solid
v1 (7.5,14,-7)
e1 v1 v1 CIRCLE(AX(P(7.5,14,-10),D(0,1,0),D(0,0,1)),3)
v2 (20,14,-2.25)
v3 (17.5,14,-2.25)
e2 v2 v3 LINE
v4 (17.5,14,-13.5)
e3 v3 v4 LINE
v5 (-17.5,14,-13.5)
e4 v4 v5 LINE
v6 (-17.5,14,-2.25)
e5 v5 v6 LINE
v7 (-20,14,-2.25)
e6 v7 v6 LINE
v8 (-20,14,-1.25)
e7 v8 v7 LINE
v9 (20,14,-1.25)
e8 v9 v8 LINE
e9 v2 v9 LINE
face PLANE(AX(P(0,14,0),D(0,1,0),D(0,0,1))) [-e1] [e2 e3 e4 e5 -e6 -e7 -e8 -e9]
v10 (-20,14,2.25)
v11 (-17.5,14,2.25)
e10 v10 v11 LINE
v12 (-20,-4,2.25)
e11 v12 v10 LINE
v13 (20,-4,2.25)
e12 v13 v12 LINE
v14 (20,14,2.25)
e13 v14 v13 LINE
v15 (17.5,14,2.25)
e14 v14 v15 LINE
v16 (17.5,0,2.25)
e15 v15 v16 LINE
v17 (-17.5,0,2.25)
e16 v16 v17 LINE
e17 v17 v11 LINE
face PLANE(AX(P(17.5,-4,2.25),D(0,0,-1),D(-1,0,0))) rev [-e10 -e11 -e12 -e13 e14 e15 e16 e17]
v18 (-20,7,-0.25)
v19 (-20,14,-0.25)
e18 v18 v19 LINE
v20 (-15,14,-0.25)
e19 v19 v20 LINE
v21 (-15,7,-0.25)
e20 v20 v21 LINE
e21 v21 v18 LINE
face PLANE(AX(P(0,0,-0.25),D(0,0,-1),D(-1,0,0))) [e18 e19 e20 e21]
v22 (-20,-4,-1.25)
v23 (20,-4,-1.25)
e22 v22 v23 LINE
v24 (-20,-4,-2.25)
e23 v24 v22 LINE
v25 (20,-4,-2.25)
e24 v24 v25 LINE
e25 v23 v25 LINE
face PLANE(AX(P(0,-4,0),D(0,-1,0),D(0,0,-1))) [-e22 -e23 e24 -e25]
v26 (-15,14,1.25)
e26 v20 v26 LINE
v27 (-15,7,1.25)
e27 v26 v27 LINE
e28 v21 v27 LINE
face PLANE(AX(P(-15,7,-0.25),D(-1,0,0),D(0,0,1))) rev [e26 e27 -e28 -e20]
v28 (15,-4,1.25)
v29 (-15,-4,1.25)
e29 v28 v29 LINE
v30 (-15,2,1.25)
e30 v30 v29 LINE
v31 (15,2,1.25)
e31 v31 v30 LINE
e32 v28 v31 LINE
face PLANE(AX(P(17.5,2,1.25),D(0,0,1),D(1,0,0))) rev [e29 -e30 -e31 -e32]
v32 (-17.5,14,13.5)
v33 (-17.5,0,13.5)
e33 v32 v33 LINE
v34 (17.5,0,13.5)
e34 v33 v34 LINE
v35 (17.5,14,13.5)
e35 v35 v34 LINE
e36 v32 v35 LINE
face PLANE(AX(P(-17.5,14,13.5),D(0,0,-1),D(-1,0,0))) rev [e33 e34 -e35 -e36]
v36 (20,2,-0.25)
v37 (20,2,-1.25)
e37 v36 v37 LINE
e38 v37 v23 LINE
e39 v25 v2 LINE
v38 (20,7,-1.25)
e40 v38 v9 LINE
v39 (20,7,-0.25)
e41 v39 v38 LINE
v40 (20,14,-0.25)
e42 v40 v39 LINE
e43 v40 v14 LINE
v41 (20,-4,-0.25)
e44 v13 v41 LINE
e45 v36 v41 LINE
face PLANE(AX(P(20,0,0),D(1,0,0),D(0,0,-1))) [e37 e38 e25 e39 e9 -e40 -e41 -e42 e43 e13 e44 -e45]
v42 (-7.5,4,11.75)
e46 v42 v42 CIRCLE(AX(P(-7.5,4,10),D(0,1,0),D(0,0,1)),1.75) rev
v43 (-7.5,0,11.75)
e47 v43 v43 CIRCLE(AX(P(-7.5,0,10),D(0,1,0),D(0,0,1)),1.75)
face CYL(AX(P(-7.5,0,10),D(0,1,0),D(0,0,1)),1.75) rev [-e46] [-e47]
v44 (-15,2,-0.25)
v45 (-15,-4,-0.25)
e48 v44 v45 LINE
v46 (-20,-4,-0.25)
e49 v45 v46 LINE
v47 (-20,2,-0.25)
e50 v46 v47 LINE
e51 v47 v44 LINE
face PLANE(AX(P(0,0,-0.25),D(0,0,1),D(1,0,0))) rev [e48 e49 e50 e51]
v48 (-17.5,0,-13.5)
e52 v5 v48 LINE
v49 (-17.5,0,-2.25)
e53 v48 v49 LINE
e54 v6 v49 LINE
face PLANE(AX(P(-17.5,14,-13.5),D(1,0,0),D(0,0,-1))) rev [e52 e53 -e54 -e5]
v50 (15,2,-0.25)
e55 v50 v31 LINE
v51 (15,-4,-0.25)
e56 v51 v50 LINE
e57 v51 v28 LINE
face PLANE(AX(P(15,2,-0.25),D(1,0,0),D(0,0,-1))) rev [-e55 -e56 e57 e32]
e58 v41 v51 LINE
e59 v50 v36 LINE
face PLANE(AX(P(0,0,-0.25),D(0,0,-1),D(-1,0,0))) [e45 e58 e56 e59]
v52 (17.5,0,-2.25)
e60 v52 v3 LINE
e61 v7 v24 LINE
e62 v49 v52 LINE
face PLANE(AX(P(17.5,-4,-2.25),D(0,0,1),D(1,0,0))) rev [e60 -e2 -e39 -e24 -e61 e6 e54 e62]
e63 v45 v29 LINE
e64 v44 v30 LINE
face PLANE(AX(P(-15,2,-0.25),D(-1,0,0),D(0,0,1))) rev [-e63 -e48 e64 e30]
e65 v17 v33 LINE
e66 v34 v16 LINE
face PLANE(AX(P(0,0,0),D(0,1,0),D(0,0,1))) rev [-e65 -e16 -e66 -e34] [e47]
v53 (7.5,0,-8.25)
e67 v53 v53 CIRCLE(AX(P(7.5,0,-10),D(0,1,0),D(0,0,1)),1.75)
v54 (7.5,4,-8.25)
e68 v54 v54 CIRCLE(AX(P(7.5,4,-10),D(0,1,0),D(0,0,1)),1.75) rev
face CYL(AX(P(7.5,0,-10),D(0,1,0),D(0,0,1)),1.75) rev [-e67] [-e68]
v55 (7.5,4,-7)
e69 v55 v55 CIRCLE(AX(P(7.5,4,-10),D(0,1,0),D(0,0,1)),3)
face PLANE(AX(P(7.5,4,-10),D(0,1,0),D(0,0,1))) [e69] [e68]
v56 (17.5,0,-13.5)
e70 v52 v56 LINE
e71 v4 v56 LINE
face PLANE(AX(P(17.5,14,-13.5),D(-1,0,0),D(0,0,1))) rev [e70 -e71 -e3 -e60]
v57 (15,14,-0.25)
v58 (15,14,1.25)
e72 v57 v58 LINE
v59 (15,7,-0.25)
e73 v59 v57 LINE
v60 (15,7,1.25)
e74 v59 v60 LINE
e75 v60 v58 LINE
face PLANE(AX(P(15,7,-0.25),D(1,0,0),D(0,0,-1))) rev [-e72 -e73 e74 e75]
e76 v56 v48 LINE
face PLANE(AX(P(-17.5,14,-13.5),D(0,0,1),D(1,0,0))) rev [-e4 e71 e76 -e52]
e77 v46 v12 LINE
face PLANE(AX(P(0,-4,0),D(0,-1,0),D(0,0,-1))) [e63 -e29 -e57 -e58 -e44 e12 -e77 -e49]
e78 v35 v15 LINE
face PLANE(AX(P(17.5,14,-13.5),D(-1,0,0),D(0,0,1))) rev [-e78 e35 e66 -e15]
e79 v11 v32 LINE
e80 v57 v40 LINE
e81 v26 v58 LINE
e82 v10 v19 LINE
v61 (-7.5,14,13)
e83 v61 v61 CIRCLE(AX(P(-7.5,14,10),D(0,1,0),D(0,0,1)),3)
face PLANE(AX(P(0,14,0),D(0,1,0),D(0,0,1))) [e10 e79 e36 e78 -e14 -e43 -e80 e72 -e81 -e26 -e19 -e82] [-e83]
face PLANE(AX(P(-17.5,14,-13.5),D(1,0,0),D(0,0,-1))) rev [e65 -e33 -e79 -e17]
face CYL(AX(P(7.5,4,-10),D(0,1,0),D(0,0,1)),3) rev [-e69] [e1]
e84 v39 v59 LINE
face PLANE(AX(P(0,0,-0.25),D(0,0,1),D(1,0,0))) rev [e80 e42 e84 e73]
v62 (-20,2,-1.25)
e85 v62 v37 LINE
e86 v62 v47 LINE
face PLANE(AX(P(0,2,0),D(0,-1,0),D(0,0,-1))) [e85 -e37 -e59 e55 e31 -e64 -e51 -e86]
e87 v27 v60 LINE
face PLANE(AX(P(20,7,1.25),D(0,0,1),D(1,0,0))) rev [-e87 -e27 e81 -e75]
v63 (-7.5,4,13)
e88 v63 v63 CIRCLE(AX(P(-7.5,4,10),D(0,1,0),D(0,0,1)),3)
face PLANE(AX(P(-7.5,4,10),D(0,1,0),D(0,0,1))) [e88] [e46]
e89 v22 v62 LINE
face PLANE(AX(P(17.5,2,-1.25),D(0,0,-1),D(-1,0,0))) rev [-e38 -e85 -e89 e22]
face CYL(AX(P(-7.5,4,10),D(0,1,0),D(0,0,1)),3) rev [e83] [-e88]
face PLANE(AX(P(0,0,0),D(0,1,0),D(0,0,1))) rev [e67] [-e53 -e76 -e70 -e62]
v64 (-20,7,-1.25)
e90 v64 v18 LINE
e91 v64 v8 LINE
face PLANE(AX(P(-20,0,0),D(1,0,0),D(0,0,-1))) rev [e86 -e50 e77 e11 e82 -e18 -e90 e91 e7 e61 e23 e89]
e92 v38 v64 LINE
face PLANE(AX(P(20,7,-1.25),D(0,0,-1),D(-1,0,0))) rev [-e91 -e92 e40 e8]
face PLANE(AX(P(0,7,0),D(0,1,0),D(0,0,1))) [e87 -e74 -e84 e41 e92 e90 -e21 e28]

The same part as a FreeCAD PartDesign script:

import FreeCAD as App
import Part
import Sketcher
from FreeCAD import Vector

doc = App.newDocument("Part")
body = doc.addObject("PartDesign::Body", "Body")

# Sketch on XZ plane
sketch1 = doc.addObject("Sketcher::SketchObject", "Sketch")
body.addObject(sketch1)
sketch1.AttachmentSupport = (doc.XZ_Plane, [""])
sketch1.MapMode = "FlatFace"
sketch1.addGeometry([
    Part.LineSegment(Vector(-18, -14, 0), Vector(-18, 14, 0)),
    Part.LineSegment(Vector(-18, 14, 0), Vector(18, 14, 0)),
    Part.LineSegment(Vector(18, 14, 0), Vector(18, -14, 0)),
    Part.LineSegment(Vector(18, -14, 0), Vector(-18, -14, 0)),
], False)
sketch1.addConstraint([
    Sketcher.Constraint("Coincident", 0, 2, 1, 1),
    Sketcher.Constraint("Coincident", 1, 2, 2, 1),
    Sketcher.Constraint("Coincident", 2, 2, 3, 1),
    Sketcher.Constraint("Coincident", 3, 2, 0, 1),
    Sketcher.Constraint("Vertical", 0),
    Sketcher.Constraint("Horizontal", 1),
    Sketcher.Constraint("Vertical", 2),
    Sketcher.Constraint("Horizontal", 3),
    Sketcher.Constraint("Symmetric", 0, 2, 2, 2, -1, 1),
    Sketcher.Constraint("DistanceX", 1, 1, 1, 2, 35.0),
    Sketcher.Constraint("DistanceY", 0, 1, 0, 2, 27.0),
])
pad1 = doc.addObject("PartDesign::Pad", "Pad")
body.addObject(pad1)
pad1.Profile = sketch1
pad1.Length = 14
pad1.Reversed = True

# Sketch on XZ plane
sketch2 = doc.addObject("Sketcher::SketchObject", "Sketch001")
body.addObject(sketch2)
sketch2.AttachmentSupport = (doc.XZ_Plane, [""])
sketch2.MapMode = "FlatFace"
sketch2.AttachmentOffset = App.Placement(Vector(0, 0, -14), App.Rotation())
sketch2.addGeometry([
    Part.Circle(Vector(7.5, -10, 0), Vector(0, 0, 1), 1.8),
    Part.Circle(Vector(-7.5, 10, 0), Vector(0, 0, 1), 1.8),
], False)
sketch2.addConstraint([
    Sketcher.Constraint("Equal", 0, 1),
    Sketcher.Constraint("Symmetric", 0, 3, 1, 3, -1, 1),
    Sketcher.Constraint("Diameter", 0, 3.5),
    Sketcher.Constraint("DistanceY", 0, 3, -1, 1, 10.0),
    Sketcher.Constraint("DistanceX", 1, 3, 0, 3, 15.0),
])
pocket1 = doc.addObject("PartDesign::Pocket", "Pocket")
body.addObject(pocket1)
pocket1.Profile = sketch2
pocket1.Length = 14
pocket1.Reversed = True

# Sketch on XZ plane
sketch3 = doc.addObject("Sketcher::SketchObject", "Sketch002")
body.addObject(sketch3)
sketch3.AttachmentSupport = (doc.XZ_Plane, [""])
sketch3.MapMode = "FlatFace"
sketch3.AttachmentOffset = App.Placement(Vector(0, 0, -14), App.Rotation())
sketch3.addGeometry([
    Part.Circle(Vector(7.5, -10, 0), Vector(0, 0, 1), 3),
    Part.Circle(Vector(-7.5, 10, 0), Vector(0, 0, 1), 3),
], False)
sketch3.addConstraint([
    Sketcher.Constraint("Equal", 0, 1),
    Sketcher.Constraint("Symmetric", 0, 3, 1, 3, -1, 1),
    Sketcher.Constraint("Diameter", 0, 6.0),
    Sketcher.Constraint("DistanceY", 0, 3, -1, 1, 10.0),
    Sketcher.Constraint("DistanceX", 1, 3, 0, 3, 15.0),
])
pocket2 = doc.addObject("PartDesign::Pocket", "Pocket001")
body.addObject(pocket2)
pocket2.Profile = sketch3
pocket2.Length = 10
pocket2.Reversed = True

# Sketch on XZ plane
sketch4 = doc.addObject("Sketcher::SketchObject", "Sketch003")
body.addObject(sketch4)
sketch4.AttachmentSupport = (doc.XZ_Plane, [""])
sketch4.MapMode = "FlatFace"
sketch4.addGeometry([
    Part.LineSegment(Vector(-17.5, 2.2, 0), Vector(-17.5, -2.2, 0)),
    Part.LineSegment(Vector(-17.5, -2.2, 0), Vector(17.5, -2.2, 0)),
    Part.LineSegment(Vector(17.5, -2.2, 0), Vector(17.5, 2.2, 0)),
    Part.LineSegment(Vector(17.5, 2.2, 0), Vector(-17.5, 2.2, 0)),
], False)
sketch4.addConstraint([
    Sketcher.Constraint("Coincident", 0, 2, 1, 1),
    Sketcher.Constraint("Coincident", 1, 2, 2, 1),
    Sketcher.Constraint("Coincident", 2, 2, 3, 1),
    Sketcher.Constraint("Coincident", 3, 2, 0, 1),
    Sketcher.Constraint("Vertical", 0),
    Sketcher.Constraint("Horizontal", 1),
    Sketcher.Constraint("Vertical", 2),
    Sketcher.Constraint("Horizontal", 3),
    Sketcher.Constraint("Symmetric", 0, 2, 2, 2, -1, 1),
    Sketcher.Constraint("DistanceX", 1, 1, 1, 2, 35.0),
    Sketcher.Constraint("DistanceY", 0, 2, 0, 1, 4.5),
])
pad2 = doc.addObject("PartDesign::Pad", "Pad001")
body.addObject(pad2)
pad2.Profile = sketch4
pad2.Length = 4

# Sketch on XZ plane
sketch5 = doc.addObject("Sketcher::SketchObject", "Sketch004")
body.addObject(sketch5)
sketch5.AttachmentSupport = (doc.XZ_Plane, [""])
sketch5.MapMode = "FlatFace"
sketch5.AttachmentOffset = App.Placement(Vector(0, 0, 4), App.Rotation())
sketch5.addGeometry([
    Part.LineSegment(Vector(-17.5, 1.2, 0), Vector(-17.5, -1.2, 0)),
    Part.LineSegment(Vector(-17.5, -1.2, 0), Vector(17.5, -1.2, 0)),
    Part.LineSegment(Vector(17.5, -1.2, 0), Vector(17.5, 1.2, 0)),
    Part.LineSegment(Vector(17.5, 1.2, 0), Vector(-17.5, 1.2, 0)),
], False)
sketch5.addConstraint([
    Sketcher.Constraint("Coincident", 0, 2, 1, 1),
    Sketcher.Constraint("Coincident", 1, 2, 2, 1),
    Sketcher.Constraint("Coincident", 2, 2, 3, 1),
    Sketcher.Constraint("Coincident", 3, 2, 0, 1),
    Sketcher.Constraint("Vertical", 0),
    Sketcher.Constraint("Horizontal", 1),
    Sketcher.Constraint("Vertical", 2),
    Sketcher.Constraint("Horizontal", 3),
    Sketcher.Constraint("Symmetric", 0, 2, 2, 2, -1, 1),
    Sketcher.Constraint("DistanceX", 1, 1, 1, 2, 35.0),
    Sketcher.Constraint("DistanceY", 0, 2, 0, 1, 2.5),
])
pocket3 = doc.addObject("PartDesign::Pocket", "Pocket002")
body.addObject(pocket3)
pocket3.Profile = sketch5
pocket3.Length = 6

# Sketch on YZ plane
sketch6 = doc.addObject("Sketcher::SketchObject", "Sketch005")
body.addObject(sketch6)
sketch6.AttachmentSupport = (doc.YZ_Plane, [""])
sketch6.MapMode = "FlatFace"
sketch6.AttachmentOffset = App.Placement(Vector(0, 0, -17.5), App.Rotation())
sketch6.addGeometry([
    Part.LineSegment(Vector(14, -2.2, 0), Vector(-4, -2.2, 0)),  # 0
    Part.LineSegment(Vector(-4, -2.2, 0), Vector(-4, -1.2, 0)),  # 1
    Part.LineSegment(Vector(-4, -1.2, 0), Vector(2, -1.2, 0)),  # 2
    Part.LineSegment(Vector(2, -1.2, 0), Vector(2, 1.2, 0)),  # 3
    Part.LineSegment(Vector(2, 1.2, 0), Vector(-4, 1.2, 0)),  # 4
    Part.LineSegment(Vector(-4, 1.2, 0), Vector(-4, 2.2, 0)),  # 5
    Part.LineSegment(Vector(-4, 2.2, 0), Vector(14, 2.2, 0)),  # 6
    Part.LineSegment(Vector(14, 2.2, 0), Vector(14, -2.2, 0)),  # 7
], False)
sketch6.addConstraint([
    Sketcher.Constraint("Coincident", 0, 2, 1, 1),
    Sketcher.Constraint("Coincident", 1, 2, 2, 1),
    Sketcher.Constraint("Coincident", 2, 2, 3, 1),
    Sketcher.Constraint("Coincident", 3, 2, 4, 1),
    Sketcher.Constraint("Coincident", 4, 2, 5, 1),
    Sketcher.Constraint("Coincident", 5, 2, 6, 1),
    Sketcher.Constraint("Coincident", 6, 2, 7, 1),
    Sketcher.Constraint("Coincident", 7, 2, 0, 1),
    Sketcher.Constraint("Horizontal", 0),
    Sketcher.Constraint("Vertical", 1),
    Sketcher.Constraint("Horizontal", 2),
    Sketcher.Constraint("Vertical", 3),
    Sketcher.Constraint("Horizontal", 4),
    Sketcher.Constraint("Vertical", 5),
    Sketcher.Constraint("Horizontal", 6),
    Sketcher.Constraint("Vertical", 7),
    Sketcher.Constraint("Symmetric", 1, 2, 4, 2, -1),
    Sketcher.Constraint("Equal", 1, 5),
    Sketcher.Constraint("DistanceX", 0, 2, 0, 1, 18.0),
    Sketcher.Constraint("DistanceX", 2, 1, 2, 2, 6.0),
    Sketcher.Constraint("DistanceY", 1, 1, 1, 2, 1.0),
    Sketcher.Constraint("DistanceY", 3, 1, 3, 2, 2.5),
    Sketcher.Constraint("DistanceX", 0, 2, -1, 1, 4.0),
])
pad3 = doc.addObject("PartDesign::Pad", "Pad002")
body.addObject(pad3)
pad3.Profile = sketch6
pad3.Length = 2.5
pad3.Reversed = True

# Sketch on YZ plane
sketch7 = doc.addObject("Sketcher::SketchObject", "Sketch006")
body.addObject(sketch7)
sketch7.AttachmentSupport = (doc.YZ_Plane, [""])
sketch7.MapMode = "FlatFace"
sketch7.AttachmentOffset = App.Placement(Vector(0, 0, 17.5), App.Rotation())
sketch7.addGeometry([
    Part.LineSegment(Vector(-4, -2.2, 0), Vector(14, -2.2, 0)),  # 0
    Part.LineSegment(Vector(14, -2.2, 0), Vector(14, 2.2, 0)),  # 1
    Part.LineSegment(Vector(14, 2.2, 0), Vector(-4, 2.2, 0)),  # 2
    Part.LineSegment(Vector(-4, 2.2, 0), Vector(-4, 1.2, 0)),  # 3
    Part.LineSegment(Vector(-4, 1.2, 0), Vector(2, 1.2, 0)),  # 4
    Part.LineSegment(Vector(2, 1.2, 0), Vector(2, -1.2, 0)),  # 5
    Part.LineSegment(Vector(2, -1.2, 0), Vector(-4, -1.2, 0)),  # 6
    Part.LineSegment(Vector(-4, -1.2, 0), Vector(-4, -2.2, 0)),  # 7
], False)
sketch7.addConstraint([
    Sketcher.Constraint("Coincident", 0, 2, 1, 1),
    Sketcher.Constraint("Coincident", 1, 2, 2, 1),
    Sketcher.Constraint("Coincident", 2, 2, 3, 1),
    Sketcher.Constraint("Coincident", 3, 2, 4, 1),
    Sketcher.Constraint("Coincident", 4, 2, 5, 1),
    Sketcher.Constraint("Coincident", 5, 2, 6, 1),
    Sketcher.Constraint("Coincident", 6, 2, 7, 1),
    Sketcher.Constraint("Coincident", 7, 2, 0, 1),
    Sketcher.Constraint("Horizontal", 0),
    Sketcher.Constraint("Vertical", 1),
    Sketcher.Constraint("Horizontal", 2),
    Sketcher.Constraint("Vertical", 3),
    Sketcher.Constraint("Horizontal", 4),
    Sketcher.Constraint("Vertical", 5),
    Sketcher.Constraint("Horizontal", 6),
    Sketcher.Constraint("Vertical", 7),
    Sketcher.Constraint("Symmetric", 3, 2, 6, 2, -1),
    Sketcher.Constraint("Equal", 3, 7),
    Sketcher.Constraint("DistanceX", 0, 1, 0, 2, 18.0),
    Sketcher.Constraint("DistanceX", 4, 1, 4, 2, 6.0),
    Sketcher.Constraint("DistanceY", 3, 2, 3, 1, 1.0),
    Sketcher.Constraint("DistanceY", 1, 1, 1, 2, 4.5),
    Sketcher.Constraint("DistanceX", -1, 1, 0, 2, 14.0),
])
pad4 = doc.addObject("PartDesign::Pad", "Pad003")
body.addObject(pad4)
pad4.Profile = sketch7
pad4.Length = 2.5

# Sketch on XY plane
sketch8 = doc.addObject("Sketcher::SketchObject", "Sketch007")
body.addObject(sketch8)
sketch8.AttachmentSupport = (doc.XY_Plane, [""])
sketch8.MapMode = "FlatFace"
sketch8.AttachmentOffset = App.Placement(Vector(0, 0, 1.25), App.Rotation())
sketch8.addGeometry([
    Part.LineSegment(Vector(20, 2, 0), Vector(20, -4, 0)),  # 0
    Part.LineSegment(Vector(20, -4, 0), Vector(15, -4, 0)),  # 1
    Part.LineSegment(Vector(15, -4, 0), Vector(15, 2, 0)),  # 2
    Part.LineSegment(Vector(15, 2, 0), Vector(20, 2, 0)),  # 3
    Part.LineSegment(Vector(-15, 2, 0), Vector(-15, -4, 0)),  # 4
    Part.LineSegment(Vector(-15, -4, 0), Vector(-20, -4, 0)),  # 5
    Part.LineSegment(Vector(-20, -4, 0), Vector(-20, 2, 0)),  # 6
    Part.LineSegment(Vector(-20, 2, 0), Vector(-15, 2, 0)),  # 7
], False)
sketch8.addConstraint([
    Sketcher.Constraint("Coincident", 0, 2, 1, 1),
    Sketcher.Constraint("Coincident", 1, 2, 2, 1),
    Sketcher.Constraint("Coincident", 2, 2, 3, 1),
    Sketcher.Constraint("Coincident", 3, 2, 0, 1),
    Sketcher.Constraint("Coincident", 4, 2, 5, 1),
    Sketcher.Constraint("Coincident", 5, 2, 6, 1),
    Sketcher.Constraint("Coincident", 6, 2, 7, 1),
    Sketcher.Constraint("Coincident", 7, 2, 4, 1),
    Sketcher.Constraint("Vertical", 0),
    Sketcher.Constraint("Horizontal", 1),
    Sketcher.Constraint("Vertical", 2),
    Sketcher.Constraint("Horizontal", 3),
    Sketcher.Constraint("Vertical", 4),
    Sketcher.Constraint("Horizontal", 5),
    Sketcher.Constraint("Vertical", 6),
    Sketcher.Constraint("Horizontal", 7),
    Sketcher.Constraint("Symmetric", 1, 2, 4, 2, -2),
    Sketcher.Constraint("Symmetric", 3, 2, 6, 2, -2),
    Sketcher.Constraint("DistanceX", 1, 2, 1, 1, 5.0),
    Sketcher.Constraint("DistanceY", 0, 2, 0, 1, 6.0),
    Sketcher.Constraint("DistanceX", -1, 1, 0, 2, 20.0),
    Sketcher.Constraint("DistanceY", 0, 2, -1, 1, 4.0),
])
pad5 = doc.addObject("PartDesign::Pad", "Pad004")
body.addObject(pad5)
pad5.Profile = sketch8
pad5.Length = 1.5
pad5.Reversed = True

# Sketch on XZ plane
sketch9 = doc.addObject("Sketcher::SketchObject", "Sketch008")
body.addObject(sketch9)
sketch9.AttachmentSupport = (doc.XZ_Plane, [""])
sketch9.MapMode = "FlatFace"
sketch9.AttachmentOffset = App.Placement(Vector(0, 0, -14), App.Rotation())
sketch9.addGeometry([
    Part.LineSegment(Vector(-20, -1.2, 0), Vector(-20, 1.2, 0)),
    Part.LineSegment(Vector(-20, 1.2, 0), Vector(20, 1.2, 0)),
    Part.LineSegment(Vector(20, 1.2, 0), Vector(20, -1.2, 0)),
    Part.LineSegment(Vector(20, -1.2, 0), Vector(-20, -1.2, 0)),
], False)
sketch9.addConstraint([
    Sketcher.Constraint("Coincident", 0, 2, 1, 1),
    Sketcher.Constraint("Coincident", 1, 2, 2, 1),
    Sketcher.Constraint("Coincident", 2, 2, 3, 1),
    Sketcher.Constraint("Coincident", 3, 2, 0, 1),
    Sketcher.Constraint("Vertical", 0),
    Sketcher.Constraint("Horizontal", 1),
    Sketcher.Constraint("Vertical", 2),
    Sketcher.Constraint("Horizontal", 3),
    Sketcher.Constraint("Symmetric", 0, 2, 2, 2, -1, 1),
    Sketcher.Constraint("DistanceX", 1, 1, 1, 2, 40.0),
    Sketcher.Constraint("DistanceY", 0, 1, 0, 2, 2.5),
])
pocket4 = doc.addObject("PartDesign::Pocket", "Pocket003")
body.addObject(pocket4)
pocket4.Profile = sketch9
pocket4.Length = 7
pocket4.Reversed = True

# Sketch on XY plane
sketch10 = doc.addObject("Sketcher::SketchObject", "Sketch009")
body.addObject(sketch10)
sketch10.AttachmentSupport = (doc.XY_Plane, [""])
sketch10.MapMode = "FlatFace"
sketch10.AttachmentOffset = App.Placement(Vector(0, 0, 1.25), App.Rotation())
sketch10.addGeometry([
    Part.LineSegment(Vector(20, 14, 0), Vector(20, 7, 0)),  # 0
    Part.LineSegment(Vector(20, 7, 0), Vector(15, 7, 0)),  # 1
    Part.LineSegment(Vector(15, 7, 0), Vector(15, 14, 0)),  # 2
    Part.LineSegment(Vector(15, 14, 0), Vector(20, 14, 0)),  # 3
    Part.LineSegment(Vector(-15, 14, 0), Vector(-15, 7, 0)),  # 4
    Part.LineSegment(Vector(-15, 7, 0), Vector(-20, 7, 0)),  # 5
    Part.LineSegment(Vector(-20, 7, 0), Vector(-20, 14, 0)),  # 6
    Part.LineSegment(Vector(-20, 14, 0), Vector(-15, 14, 0)),  # 7
], False)
sketch10.addConstraint([
    Sketcher.Constraint("Coincident", 0, 2, 1, 1),
    Sketcher.Constraint("Coincident", 1, 2, 2, 1),
    Sketcher.Constraint("Coincident", 2, 2, 3, 1),
    Sketcher.Constraint("Coincident", 3, 2, 0, 1),
    Sketcher.Constraint("Coincident", 4, 2, 5, 1),
    Sketcher.Constraint("Coincident", 5, 2, 6, 1),
    Sketcher.Constraint("Coincident", 6, 2, 7, 1),
    Sketcher.Constraint("Coincident", 7, 2, 4, 1),
    Sketcher.Constraint("Vertical", 0),
    Sketcher.Constraint("Horizontal", 1),
    Sketcher.Constraint("Vertical", 2),
    Sketcher.Constraint("Horizontal", 3),
    Sketcher.Constraint("Vertical", 4),
    Sketcher.Constraint("Horizontal", 5),
    Sketcher.Constraint("Vertical", 6),
    Sketcher.Constraint("Horizontal", 7),
    Sketcher.Constraint("Symmetric", 1, 2, 4, 2, -2),
    Sketcher.Constraint("Symmetric", 3, 2, 6, 2, -2),
    Sketcher.Constraint("DistanceX", 1, 2, 1, 1, 5.0),
    Sketcher.Constraint("DistanceY", 0, 2, 0, 1, 7.0),
    Sketcher.Constraint("DistanceX", -1, 1, 0, 2, 20.0),
    Sketcher.Constraint("DistanceY", -1, 1, 0, 2, 7.0),
])
pad6 = doc.addObject("PartDesign::Pad", "Pad005")
body.addObject(pad6)
pad6.Profile = sketch10
pad6.Length = 1.5
pad6.Reversed = True

doc.recompute()
